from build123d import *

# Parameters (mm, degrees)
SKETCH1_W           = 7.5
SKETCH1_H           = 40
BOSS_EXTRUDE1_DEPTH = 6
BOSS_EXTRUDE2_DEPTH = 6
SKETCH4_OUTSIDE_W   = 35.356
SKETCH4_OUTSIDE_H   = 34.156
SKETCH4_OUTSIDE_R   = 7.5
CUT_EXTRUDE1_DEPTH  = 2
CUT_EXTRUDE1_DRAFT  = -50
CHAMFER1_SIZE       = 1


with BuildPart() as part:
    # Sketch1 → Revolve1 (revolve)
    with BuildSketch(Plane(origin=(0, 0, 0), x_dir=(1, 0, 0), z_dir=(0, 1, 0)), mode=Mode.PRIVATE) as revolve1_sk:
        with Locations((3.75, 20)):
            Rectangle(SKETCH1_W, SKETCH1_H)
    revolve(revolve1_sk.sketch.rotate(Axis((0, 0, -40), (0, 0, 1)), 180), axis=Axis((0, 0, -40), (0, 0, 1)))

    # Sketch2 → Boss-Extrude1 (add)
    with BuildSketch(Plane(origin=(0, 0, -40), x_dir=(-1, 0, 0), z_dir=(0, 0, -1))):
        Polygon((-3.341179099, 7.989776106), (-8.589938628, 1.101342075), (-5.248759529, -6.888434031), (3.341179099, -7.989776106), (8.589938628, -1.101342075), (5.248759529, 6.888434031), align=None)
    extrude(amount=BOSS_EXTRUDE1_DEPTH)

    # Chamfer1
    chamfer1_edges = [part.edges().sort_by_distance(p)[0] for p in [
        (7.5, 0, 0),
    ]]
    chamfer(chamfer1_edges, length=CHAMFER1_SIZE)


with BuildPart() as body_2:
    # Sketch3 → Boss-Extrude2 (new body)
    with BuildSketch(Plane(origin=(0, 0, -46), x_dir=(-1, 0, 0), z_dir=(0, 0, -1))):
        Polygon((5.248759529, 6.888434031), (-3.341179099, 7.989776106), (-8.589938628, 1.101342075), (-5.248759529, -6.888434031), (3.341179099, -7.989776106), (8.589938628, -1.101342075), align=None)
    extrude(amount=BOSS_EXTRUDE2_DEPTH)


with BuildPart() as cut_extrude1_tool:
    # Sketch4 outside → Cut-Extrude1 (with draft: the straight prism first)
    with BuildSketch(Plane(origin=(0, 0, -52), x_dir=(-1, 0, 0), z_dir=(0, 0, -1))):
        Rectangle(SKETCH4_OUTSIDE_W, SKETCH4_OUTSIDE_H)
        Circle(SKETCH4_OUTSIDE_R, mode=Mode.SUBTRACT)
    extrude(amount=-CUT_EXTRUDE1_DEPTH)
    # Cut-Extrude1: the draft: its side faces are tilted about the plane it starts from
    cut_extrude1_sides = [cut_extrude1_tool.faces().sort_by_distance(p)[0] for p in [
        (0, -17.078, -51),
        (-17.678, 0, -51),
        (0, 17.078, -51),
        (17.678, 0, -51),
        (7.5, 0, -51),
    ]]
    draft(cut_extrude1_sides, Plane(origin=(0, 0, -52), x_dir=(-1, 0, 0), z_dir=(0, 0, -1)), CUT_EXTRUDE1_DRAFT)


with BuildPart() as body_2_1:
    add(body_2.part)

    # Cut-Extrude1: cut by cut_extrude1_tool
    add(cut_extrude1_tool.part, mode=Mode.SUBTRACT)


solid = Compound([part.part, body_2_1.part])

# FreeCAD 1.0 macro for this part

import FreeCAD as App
import Part
import Sketcher
from FreeCAD import Vector
Q = App.Units.Quantity


def edges_at(feature, points):
    """Names of the edges that pass closest to the given points."""
    edges = feature.Shape.Edges
    near = lambda p: min(range(len(edges)), key=lambda i: edges[i].distToShape(Part.Vertex(*p))[0])
    return sorted({f"Edge{near(p) + 1}" for p in points})


def faces_at(feature, points):
    """Names of the faces that lie closest to the given points."""
    faces = feature.Shape.Faces
    near = lambda p: min(range(len(faces)), key=lambda i: faces[i].distToShape(Part.Vertex(*p))[0])
    return sorted({f"Face{near(p) + 1}" for p in points})

doc = App.newDocument("Part")
params = doc.addObject("Spreadsheet::Sheet", "Params")
for row, (alias, value) in enumerate([
    ("sketch1_height", "40 mm"),
    ("sketch1_width", "7.5 mm"),
    ("revolution_angle", "360 deg"),
    ("pad1_length", "6 mm"),
    ("chamfer_size", "1 mm"),
    ("pad2_length", "6 mm"),
    ("sketch4_diameter", "15 mm"),
    ("pad3_length", "2 mm"),
    ("draft_angle", "50 deg"),
], start=1):
    params.set(f"A{row}", alias)
    params.set(f"B{row}", "=" + value)
    params.setAlias(f"B{row}", alias)

body = doc.addObject("PartDesign::Body", "Body")

# Sketch on XZ plane
sketch1 = body.newObject("Sketcher::SketchObject", "Sketch")
sketch1.AttachmentSupport = (doc.getObject("XZ_Plane"), [""])
sketch1.MapMode = "FlatFace"
sketch1.addGeometry(Part.LineSegment(Vector(0, -40, 0), Vector(0, 0, 0)), False)
sketch1.addGeometry(Part.LineSegment(Vector(0, 0, 0), Vector(8, 0, 0)), False)
sketch1.addGeometry(Part.LineSegment(Vector(8, 0, 0), Vector(8, -40, 0)), False)
sketch1.addGeometry(Part.LineSegment(Vector(8, -40, 0), Vector(0, -40, 0)), False)
sketch1.addConstraint(Sketcher.Constraint("Coincident", 0, 2, 1, 1))
sketch1.addConstraint(Sketcher.Constraint("Coincident", 1, 2, 2, 1))
sketch1.addConstraint(Sketcher.Constraint("Coincident", 2, 2, 3, 1))
sketch1.addConstraint(Sketcher.Constraint("Coincident", 3, 2, 0, 1))
sketch1.addConstraint(Sketcher.Constraint("Vertical", 0))
sketch1.addConstraint(Sketcher.Constraint("Horizontal", 1))
sketch1.addConstraint(Sketcher.Constraint("Vertical", 2))
sketch1.addConstraint(Sketcher.Constraint("Horizontal", 3))
sketch1.addConstraint(Sketcher.Constraint("Coincident", 0, 2, -1, 1))
sketch1.addConstraint(Sketcher.Constraint("DistanceY", 0, 1, 0, 2, Q("40 mm")))
sketch1.addConstraint(Sketcher.Constraint("DistanceX", 1, 1, 1, 2, Q("7.5 mm")))
sketch1.setExpression("Constraints[9]", "Params.sketch1_height")
sketch1.setExpression("Constraints[10]", "Params.sketch1_width")
revolution = body.newObject("PartDesign::Revolution", "Revolution")
revolution.Profile = sketch1
revolution.ReferenceAxis = (sketch1, ["V_Axis"])
revolution.setExpression("Angle", "Params.revolution_angle")

# Sketch on XY plane
sketch2 = body.newObject("Sketcher::SketchObject", "Sketch001")
sketch2.AttachmentSupport = (doc.getObject("XY_Plane"), [""])
sketch2.MapMode = "FlatFace"
sketch2.AttachmentOffset = App.Placement(Vector(0, 0, -40), App.Rotation())
sketch2.addGeometry(Part.LineSegment(Vector(3, 8, 0), Vector(9, 1, 0)), False)
sketch2.addGeometry(Part.LineSegment(Vector(9, 1, 0), Vector(5, -7, 0)), False)
sketch2.addGeometry(Part.LineSegment(Vector(5, -7, 0), Vector(-3, -8, 0)), False)
sketch2.addGeometry(Part.LineSegment(Vector(-3, -8, 0), Vector(-9, -1, 0)), False)
sketch2.addGeometry(Part.LineSegment(Vector(-9, -1, 0), Vector(-5, 7, 0)), False)
sketch2.addGeometry(Part.LineSegment(Vector(-5, 7, 0), Vector(3, 8, 0)), False)
sketch2.addConstraint(Sketcher.Constraint("Coincident", 0, 2, 1, 1))
sketch2.addConstraint(Sketcher.Constraint("Coincident", 1, 2, 2, 1))
sketch2.addConstraint(Sketcher.Constraint("Coincident", 2, 2, 3, 1))
sketch2.addConstraint(Sketcher.Constraint("Coincident", 3, 2, 4, 1))
sketch2.addConstraint(Sketcher.Constraint("Coincident", 4, 2, 5, 1))
sketch2.addConstraint(Sketcher.Constraint("Coincident", 5, 2, 0, 1))
sketch2.addConstraint(Sketcher.Constraint("Symmetric", 0, 2, 3, 2, -1, 1))
sketch2.addConstraint(Sketcher.Constraint("Symmetric", 1, 2, 4, 2, -1, 1))
sketch2.addConstraint(Sketcher.Constraint("Symmetric", 2, 2, 5, 2, -1, 1))
sketch2.addConstraint(Sketcher.Constraint("Equal", 0, 1))
sketch2.addConstraint(Sketcher.Constraint("Equal", 1, 2))
sketch2.addConstraint(Sketcher.Constraint("DistanceX", 3, 2, 1, 2, Q("13.838698 mm")))
sketch2.addConstraint(Sketcher.Constraint("DistanceX", -1, 1, 0, 2, Q("8.589939 mm")))
sketch2.addConstraint(Sketcher.Constraint("DistanceX", 2, 2, -1, 1, Q("3.341179 mm")))
sketch2.addConstraint(Sketcher.Constraint("DistanceY", 2, 2, 0, 2, Q("9.091118 mm")))
pad1 = body.newObject("PartDesign::Pad", "Pad")
pad1.Profile = sketch2
pad1.setExpression("Length", "Params.pad1_length")
pad1.Reversed = True
doc.recompute()

chamfer = body.newObject("PartDesign::Chamfer", "Chamfer")
chamfer.Base = (pad1, edges_at(pad1, [(7.5, 0, 0)]))
chamfer.setExpression("Size", "Params.chamfer_size")
body2 = doc.addObject("PartDesign::Body", "Body001")

# Sketch on XY plane
sketch3 = body2.newObject("Sketcher::SketchObject", "Sketch002")
sketch3.AttachmentSupport = (doc.getObject("XY_Plane001"), [""])
sketch3.MapMode = "FlatFace"
sketch3.AttachmentOffset = App.Placement(Vector(0, 0, -46), App.Rotation())
sketch3.addGeometry(Part.LineSegment(Vector(-5, 7, 0), Vector(3, 8, 0)), False)
sketch3.addGeometry(Part.LineSegment(Vector(3, 8, 0), Vector(9, 1, 0)), False)
sketch3.addGeometry(Part.LineSegment(Vector(9, 1, 0), Vector(5, -7, 0)), False)
sketch3.addGeometry(Part.LineSegment(Vector(5, -7, 0), Vector(-3, -8, 0)), False)
sketch3.addGeometry(Part.LineSegment(Vector(-3, -8, 0), Vector(-9, -1, 0)), False)
sketch3.addGeometry(Part.LineSegment(Vector(-9, -1, 0), Vector(-5, 7, 0)), False)
sketch3.addConstraint(Sketcher.Constraint("Coincident", 0, 2, 1, 1))
sketch3.addConstraint(Sketcher.Constraint("Coincident", 1, 2, 2, 1))
sketch3.addConstraint(Sketcher.Constraint("Coincident", 2, 2, 3, 1))
sketch3.addConstraint(Sketcher.Constraint("Coincident", 3, 2, 4, 1))
sketch3.addConstraint(Sketcher.Constraint("Coincident", 4, 2, 5, 1))
sketch3.addConstraint(Sketcher.Constraint("Coincident", 5, 2, 0, 1))
sketch3.addConstraint(Sketcher.Constraint("Symmetric", 0, 2, 3, 2, -1, 1))
sketch3.addConstraint(Sketcher.Constraint("Symmetric", 1, 2, 4, 2, -1, 1))
sketch3.addConstraint(Sketcher.Constraint("Symmetric", 2, 2, 5, 2, -1, 1))
sketch3.addConstraint(Sketcher.Constraint("Equal", 0, 1))
sketch3.addConstraint(Sketcher.Constraint("Equal", 1, 2))
sketch3.addConstraint(Sketcher.Constraint("DistanceX", 4, 2, 2, 2, Q("13.838698 mm")))
sketch3.addConstraint(Sketcher.Constraint("DistanceX", -1, 1, 0, 2, Q("3.341179 mm")))
sketch3.addConstraint(Sketcher.Constraint("DistanceX", -1, 1, 1, 2, Q("8.589939 mm")))
sketch3.addConstraint(Sketcher.Constraint("DistanceY", 2, 2, 0, 2, Q("14.87821 mm")))
pad2 = body2.newObject("PartDesign::Pad", "Pad001")
pad2.Profile = sketch3
pad2.setExpression("Length", "Params.pad2_length")
pad2.Reversed = True
body3 = doc.addObject("PartDesign::Body", "Body002")

# Sketch on XY plane
sketch4 = body3.newObject("Sketcher::SketchObject", "Sketch003")
sketch4.AttachmentSupport = (doc.getObject("XY_Plane002"), [""])
sketch4.MapMode = "FlatFace"
sketch4.AttachmentOffset = App.Placement(Vector(0, 0, -52), App.Rotation())
sketch4.addGeometry(Part.LineSegment(Vector(18, 17, 0), Vector(18, -17, 0)), False)
sketch4.addGeometry(Part.LineSegment(Vector(18, -17, 0), Vector(-18, -17, 0)), False)
sketch4.addGeometry(Part.LineSegment(Vector(-18, -17, 0), Vector(-18, 17, 0)), False)
sketch4.addGeometry(Part.LineSegment(Vector(-18, 17, 0), Vector(18, 17, 0)), False)
sketch4.addGeometry(Part.Circle(Vector(0, 0, 0), Vector(0, 0, 1), 8), False)
sketch4.addConstraint(Sketcher.Constraint("Coincident", 0, 2, 1, 1))
sketch4.addConstraint(Sketcher.Constraint("Coincident", 1, 2, 2, 1))
sketch4.addConstraint(Sketcher.Constraint("Coincident", 2, 2, 3, 1))
sketch4.addConstraint(Sketcher.Constraint("Coincident", 3, 2, 0, 1))
sketch4.addConstraint(Sketcher.Constraint("Vertical", 0))
sketch4.addConstraint(Sketcher.Constraint("Horizontal", 1))
sketch4.addConstraint(Sketcher.Constraint("Vertical", 2))
sketch4.addConstraint(Sketcher.Constraint("Horizontal", 3))
sketch4.addConstraint(Sketcher.Constraint("Coincident", 4, 3, -1, 1))
sketch4.addConstraint(Sketcher.Constraint("Symmetric", 0, 2, 2, 2, -1, 1))
sketch4.addConstraint(Sketcher.Constraint("Diameter", 4, Q("15 mm")))
sketch4.addConstraint(Sketcher.Constraint("DistanceX", 1, 2, 1, 1, Q("35.356 mm")))
sketch4.addConstraint(Sketcher.Constraint("DistanceY", 0, 2, 0, 1, Q("34.156 mm")))
sketch4.setExpression("Constraints[10]", "Params.sketch4_diameter")
pad3 = body3.newObject("PartDesign::Pad", "Pad002")
pad3.Profile = sketch4
pad3.setExpression("Length", "Params.pad3_length")
doc.recompute()

datumplane = body3.newObject("PartDesign::Plane", "DatumPlane")
datumplane.AttachmentSupport = (doc.getObject("XY_Plane002"), [""])
datumplane.MapMode = "FlatFace"
datumplane.AttachmentOffset = App.Placement(Vector(0, 0, -52), App.Rotation())
draft = body3.newObject("PartDesign::Draft", "Draft")
draft.Base = (pad3, faces_at(pad3, [
    (0, -17.078, -51),
    (-17.678, 0, -51),
    (0, 17.078, -51),
    (17.678, 0, -51),
    (7.5, 0, -51),
]))
draft.NeutralPlane = (datumplane, [""])
draft.setExpression("Angle", "Params.draft_angle")
draft.Reversed = False
doc.recompute()

boolean = body2.newObject("PartDesign::Boolean", "Boolean")
boolean.Type = "Cut"
boolean.addObjects([body3])

doc.recompute()
